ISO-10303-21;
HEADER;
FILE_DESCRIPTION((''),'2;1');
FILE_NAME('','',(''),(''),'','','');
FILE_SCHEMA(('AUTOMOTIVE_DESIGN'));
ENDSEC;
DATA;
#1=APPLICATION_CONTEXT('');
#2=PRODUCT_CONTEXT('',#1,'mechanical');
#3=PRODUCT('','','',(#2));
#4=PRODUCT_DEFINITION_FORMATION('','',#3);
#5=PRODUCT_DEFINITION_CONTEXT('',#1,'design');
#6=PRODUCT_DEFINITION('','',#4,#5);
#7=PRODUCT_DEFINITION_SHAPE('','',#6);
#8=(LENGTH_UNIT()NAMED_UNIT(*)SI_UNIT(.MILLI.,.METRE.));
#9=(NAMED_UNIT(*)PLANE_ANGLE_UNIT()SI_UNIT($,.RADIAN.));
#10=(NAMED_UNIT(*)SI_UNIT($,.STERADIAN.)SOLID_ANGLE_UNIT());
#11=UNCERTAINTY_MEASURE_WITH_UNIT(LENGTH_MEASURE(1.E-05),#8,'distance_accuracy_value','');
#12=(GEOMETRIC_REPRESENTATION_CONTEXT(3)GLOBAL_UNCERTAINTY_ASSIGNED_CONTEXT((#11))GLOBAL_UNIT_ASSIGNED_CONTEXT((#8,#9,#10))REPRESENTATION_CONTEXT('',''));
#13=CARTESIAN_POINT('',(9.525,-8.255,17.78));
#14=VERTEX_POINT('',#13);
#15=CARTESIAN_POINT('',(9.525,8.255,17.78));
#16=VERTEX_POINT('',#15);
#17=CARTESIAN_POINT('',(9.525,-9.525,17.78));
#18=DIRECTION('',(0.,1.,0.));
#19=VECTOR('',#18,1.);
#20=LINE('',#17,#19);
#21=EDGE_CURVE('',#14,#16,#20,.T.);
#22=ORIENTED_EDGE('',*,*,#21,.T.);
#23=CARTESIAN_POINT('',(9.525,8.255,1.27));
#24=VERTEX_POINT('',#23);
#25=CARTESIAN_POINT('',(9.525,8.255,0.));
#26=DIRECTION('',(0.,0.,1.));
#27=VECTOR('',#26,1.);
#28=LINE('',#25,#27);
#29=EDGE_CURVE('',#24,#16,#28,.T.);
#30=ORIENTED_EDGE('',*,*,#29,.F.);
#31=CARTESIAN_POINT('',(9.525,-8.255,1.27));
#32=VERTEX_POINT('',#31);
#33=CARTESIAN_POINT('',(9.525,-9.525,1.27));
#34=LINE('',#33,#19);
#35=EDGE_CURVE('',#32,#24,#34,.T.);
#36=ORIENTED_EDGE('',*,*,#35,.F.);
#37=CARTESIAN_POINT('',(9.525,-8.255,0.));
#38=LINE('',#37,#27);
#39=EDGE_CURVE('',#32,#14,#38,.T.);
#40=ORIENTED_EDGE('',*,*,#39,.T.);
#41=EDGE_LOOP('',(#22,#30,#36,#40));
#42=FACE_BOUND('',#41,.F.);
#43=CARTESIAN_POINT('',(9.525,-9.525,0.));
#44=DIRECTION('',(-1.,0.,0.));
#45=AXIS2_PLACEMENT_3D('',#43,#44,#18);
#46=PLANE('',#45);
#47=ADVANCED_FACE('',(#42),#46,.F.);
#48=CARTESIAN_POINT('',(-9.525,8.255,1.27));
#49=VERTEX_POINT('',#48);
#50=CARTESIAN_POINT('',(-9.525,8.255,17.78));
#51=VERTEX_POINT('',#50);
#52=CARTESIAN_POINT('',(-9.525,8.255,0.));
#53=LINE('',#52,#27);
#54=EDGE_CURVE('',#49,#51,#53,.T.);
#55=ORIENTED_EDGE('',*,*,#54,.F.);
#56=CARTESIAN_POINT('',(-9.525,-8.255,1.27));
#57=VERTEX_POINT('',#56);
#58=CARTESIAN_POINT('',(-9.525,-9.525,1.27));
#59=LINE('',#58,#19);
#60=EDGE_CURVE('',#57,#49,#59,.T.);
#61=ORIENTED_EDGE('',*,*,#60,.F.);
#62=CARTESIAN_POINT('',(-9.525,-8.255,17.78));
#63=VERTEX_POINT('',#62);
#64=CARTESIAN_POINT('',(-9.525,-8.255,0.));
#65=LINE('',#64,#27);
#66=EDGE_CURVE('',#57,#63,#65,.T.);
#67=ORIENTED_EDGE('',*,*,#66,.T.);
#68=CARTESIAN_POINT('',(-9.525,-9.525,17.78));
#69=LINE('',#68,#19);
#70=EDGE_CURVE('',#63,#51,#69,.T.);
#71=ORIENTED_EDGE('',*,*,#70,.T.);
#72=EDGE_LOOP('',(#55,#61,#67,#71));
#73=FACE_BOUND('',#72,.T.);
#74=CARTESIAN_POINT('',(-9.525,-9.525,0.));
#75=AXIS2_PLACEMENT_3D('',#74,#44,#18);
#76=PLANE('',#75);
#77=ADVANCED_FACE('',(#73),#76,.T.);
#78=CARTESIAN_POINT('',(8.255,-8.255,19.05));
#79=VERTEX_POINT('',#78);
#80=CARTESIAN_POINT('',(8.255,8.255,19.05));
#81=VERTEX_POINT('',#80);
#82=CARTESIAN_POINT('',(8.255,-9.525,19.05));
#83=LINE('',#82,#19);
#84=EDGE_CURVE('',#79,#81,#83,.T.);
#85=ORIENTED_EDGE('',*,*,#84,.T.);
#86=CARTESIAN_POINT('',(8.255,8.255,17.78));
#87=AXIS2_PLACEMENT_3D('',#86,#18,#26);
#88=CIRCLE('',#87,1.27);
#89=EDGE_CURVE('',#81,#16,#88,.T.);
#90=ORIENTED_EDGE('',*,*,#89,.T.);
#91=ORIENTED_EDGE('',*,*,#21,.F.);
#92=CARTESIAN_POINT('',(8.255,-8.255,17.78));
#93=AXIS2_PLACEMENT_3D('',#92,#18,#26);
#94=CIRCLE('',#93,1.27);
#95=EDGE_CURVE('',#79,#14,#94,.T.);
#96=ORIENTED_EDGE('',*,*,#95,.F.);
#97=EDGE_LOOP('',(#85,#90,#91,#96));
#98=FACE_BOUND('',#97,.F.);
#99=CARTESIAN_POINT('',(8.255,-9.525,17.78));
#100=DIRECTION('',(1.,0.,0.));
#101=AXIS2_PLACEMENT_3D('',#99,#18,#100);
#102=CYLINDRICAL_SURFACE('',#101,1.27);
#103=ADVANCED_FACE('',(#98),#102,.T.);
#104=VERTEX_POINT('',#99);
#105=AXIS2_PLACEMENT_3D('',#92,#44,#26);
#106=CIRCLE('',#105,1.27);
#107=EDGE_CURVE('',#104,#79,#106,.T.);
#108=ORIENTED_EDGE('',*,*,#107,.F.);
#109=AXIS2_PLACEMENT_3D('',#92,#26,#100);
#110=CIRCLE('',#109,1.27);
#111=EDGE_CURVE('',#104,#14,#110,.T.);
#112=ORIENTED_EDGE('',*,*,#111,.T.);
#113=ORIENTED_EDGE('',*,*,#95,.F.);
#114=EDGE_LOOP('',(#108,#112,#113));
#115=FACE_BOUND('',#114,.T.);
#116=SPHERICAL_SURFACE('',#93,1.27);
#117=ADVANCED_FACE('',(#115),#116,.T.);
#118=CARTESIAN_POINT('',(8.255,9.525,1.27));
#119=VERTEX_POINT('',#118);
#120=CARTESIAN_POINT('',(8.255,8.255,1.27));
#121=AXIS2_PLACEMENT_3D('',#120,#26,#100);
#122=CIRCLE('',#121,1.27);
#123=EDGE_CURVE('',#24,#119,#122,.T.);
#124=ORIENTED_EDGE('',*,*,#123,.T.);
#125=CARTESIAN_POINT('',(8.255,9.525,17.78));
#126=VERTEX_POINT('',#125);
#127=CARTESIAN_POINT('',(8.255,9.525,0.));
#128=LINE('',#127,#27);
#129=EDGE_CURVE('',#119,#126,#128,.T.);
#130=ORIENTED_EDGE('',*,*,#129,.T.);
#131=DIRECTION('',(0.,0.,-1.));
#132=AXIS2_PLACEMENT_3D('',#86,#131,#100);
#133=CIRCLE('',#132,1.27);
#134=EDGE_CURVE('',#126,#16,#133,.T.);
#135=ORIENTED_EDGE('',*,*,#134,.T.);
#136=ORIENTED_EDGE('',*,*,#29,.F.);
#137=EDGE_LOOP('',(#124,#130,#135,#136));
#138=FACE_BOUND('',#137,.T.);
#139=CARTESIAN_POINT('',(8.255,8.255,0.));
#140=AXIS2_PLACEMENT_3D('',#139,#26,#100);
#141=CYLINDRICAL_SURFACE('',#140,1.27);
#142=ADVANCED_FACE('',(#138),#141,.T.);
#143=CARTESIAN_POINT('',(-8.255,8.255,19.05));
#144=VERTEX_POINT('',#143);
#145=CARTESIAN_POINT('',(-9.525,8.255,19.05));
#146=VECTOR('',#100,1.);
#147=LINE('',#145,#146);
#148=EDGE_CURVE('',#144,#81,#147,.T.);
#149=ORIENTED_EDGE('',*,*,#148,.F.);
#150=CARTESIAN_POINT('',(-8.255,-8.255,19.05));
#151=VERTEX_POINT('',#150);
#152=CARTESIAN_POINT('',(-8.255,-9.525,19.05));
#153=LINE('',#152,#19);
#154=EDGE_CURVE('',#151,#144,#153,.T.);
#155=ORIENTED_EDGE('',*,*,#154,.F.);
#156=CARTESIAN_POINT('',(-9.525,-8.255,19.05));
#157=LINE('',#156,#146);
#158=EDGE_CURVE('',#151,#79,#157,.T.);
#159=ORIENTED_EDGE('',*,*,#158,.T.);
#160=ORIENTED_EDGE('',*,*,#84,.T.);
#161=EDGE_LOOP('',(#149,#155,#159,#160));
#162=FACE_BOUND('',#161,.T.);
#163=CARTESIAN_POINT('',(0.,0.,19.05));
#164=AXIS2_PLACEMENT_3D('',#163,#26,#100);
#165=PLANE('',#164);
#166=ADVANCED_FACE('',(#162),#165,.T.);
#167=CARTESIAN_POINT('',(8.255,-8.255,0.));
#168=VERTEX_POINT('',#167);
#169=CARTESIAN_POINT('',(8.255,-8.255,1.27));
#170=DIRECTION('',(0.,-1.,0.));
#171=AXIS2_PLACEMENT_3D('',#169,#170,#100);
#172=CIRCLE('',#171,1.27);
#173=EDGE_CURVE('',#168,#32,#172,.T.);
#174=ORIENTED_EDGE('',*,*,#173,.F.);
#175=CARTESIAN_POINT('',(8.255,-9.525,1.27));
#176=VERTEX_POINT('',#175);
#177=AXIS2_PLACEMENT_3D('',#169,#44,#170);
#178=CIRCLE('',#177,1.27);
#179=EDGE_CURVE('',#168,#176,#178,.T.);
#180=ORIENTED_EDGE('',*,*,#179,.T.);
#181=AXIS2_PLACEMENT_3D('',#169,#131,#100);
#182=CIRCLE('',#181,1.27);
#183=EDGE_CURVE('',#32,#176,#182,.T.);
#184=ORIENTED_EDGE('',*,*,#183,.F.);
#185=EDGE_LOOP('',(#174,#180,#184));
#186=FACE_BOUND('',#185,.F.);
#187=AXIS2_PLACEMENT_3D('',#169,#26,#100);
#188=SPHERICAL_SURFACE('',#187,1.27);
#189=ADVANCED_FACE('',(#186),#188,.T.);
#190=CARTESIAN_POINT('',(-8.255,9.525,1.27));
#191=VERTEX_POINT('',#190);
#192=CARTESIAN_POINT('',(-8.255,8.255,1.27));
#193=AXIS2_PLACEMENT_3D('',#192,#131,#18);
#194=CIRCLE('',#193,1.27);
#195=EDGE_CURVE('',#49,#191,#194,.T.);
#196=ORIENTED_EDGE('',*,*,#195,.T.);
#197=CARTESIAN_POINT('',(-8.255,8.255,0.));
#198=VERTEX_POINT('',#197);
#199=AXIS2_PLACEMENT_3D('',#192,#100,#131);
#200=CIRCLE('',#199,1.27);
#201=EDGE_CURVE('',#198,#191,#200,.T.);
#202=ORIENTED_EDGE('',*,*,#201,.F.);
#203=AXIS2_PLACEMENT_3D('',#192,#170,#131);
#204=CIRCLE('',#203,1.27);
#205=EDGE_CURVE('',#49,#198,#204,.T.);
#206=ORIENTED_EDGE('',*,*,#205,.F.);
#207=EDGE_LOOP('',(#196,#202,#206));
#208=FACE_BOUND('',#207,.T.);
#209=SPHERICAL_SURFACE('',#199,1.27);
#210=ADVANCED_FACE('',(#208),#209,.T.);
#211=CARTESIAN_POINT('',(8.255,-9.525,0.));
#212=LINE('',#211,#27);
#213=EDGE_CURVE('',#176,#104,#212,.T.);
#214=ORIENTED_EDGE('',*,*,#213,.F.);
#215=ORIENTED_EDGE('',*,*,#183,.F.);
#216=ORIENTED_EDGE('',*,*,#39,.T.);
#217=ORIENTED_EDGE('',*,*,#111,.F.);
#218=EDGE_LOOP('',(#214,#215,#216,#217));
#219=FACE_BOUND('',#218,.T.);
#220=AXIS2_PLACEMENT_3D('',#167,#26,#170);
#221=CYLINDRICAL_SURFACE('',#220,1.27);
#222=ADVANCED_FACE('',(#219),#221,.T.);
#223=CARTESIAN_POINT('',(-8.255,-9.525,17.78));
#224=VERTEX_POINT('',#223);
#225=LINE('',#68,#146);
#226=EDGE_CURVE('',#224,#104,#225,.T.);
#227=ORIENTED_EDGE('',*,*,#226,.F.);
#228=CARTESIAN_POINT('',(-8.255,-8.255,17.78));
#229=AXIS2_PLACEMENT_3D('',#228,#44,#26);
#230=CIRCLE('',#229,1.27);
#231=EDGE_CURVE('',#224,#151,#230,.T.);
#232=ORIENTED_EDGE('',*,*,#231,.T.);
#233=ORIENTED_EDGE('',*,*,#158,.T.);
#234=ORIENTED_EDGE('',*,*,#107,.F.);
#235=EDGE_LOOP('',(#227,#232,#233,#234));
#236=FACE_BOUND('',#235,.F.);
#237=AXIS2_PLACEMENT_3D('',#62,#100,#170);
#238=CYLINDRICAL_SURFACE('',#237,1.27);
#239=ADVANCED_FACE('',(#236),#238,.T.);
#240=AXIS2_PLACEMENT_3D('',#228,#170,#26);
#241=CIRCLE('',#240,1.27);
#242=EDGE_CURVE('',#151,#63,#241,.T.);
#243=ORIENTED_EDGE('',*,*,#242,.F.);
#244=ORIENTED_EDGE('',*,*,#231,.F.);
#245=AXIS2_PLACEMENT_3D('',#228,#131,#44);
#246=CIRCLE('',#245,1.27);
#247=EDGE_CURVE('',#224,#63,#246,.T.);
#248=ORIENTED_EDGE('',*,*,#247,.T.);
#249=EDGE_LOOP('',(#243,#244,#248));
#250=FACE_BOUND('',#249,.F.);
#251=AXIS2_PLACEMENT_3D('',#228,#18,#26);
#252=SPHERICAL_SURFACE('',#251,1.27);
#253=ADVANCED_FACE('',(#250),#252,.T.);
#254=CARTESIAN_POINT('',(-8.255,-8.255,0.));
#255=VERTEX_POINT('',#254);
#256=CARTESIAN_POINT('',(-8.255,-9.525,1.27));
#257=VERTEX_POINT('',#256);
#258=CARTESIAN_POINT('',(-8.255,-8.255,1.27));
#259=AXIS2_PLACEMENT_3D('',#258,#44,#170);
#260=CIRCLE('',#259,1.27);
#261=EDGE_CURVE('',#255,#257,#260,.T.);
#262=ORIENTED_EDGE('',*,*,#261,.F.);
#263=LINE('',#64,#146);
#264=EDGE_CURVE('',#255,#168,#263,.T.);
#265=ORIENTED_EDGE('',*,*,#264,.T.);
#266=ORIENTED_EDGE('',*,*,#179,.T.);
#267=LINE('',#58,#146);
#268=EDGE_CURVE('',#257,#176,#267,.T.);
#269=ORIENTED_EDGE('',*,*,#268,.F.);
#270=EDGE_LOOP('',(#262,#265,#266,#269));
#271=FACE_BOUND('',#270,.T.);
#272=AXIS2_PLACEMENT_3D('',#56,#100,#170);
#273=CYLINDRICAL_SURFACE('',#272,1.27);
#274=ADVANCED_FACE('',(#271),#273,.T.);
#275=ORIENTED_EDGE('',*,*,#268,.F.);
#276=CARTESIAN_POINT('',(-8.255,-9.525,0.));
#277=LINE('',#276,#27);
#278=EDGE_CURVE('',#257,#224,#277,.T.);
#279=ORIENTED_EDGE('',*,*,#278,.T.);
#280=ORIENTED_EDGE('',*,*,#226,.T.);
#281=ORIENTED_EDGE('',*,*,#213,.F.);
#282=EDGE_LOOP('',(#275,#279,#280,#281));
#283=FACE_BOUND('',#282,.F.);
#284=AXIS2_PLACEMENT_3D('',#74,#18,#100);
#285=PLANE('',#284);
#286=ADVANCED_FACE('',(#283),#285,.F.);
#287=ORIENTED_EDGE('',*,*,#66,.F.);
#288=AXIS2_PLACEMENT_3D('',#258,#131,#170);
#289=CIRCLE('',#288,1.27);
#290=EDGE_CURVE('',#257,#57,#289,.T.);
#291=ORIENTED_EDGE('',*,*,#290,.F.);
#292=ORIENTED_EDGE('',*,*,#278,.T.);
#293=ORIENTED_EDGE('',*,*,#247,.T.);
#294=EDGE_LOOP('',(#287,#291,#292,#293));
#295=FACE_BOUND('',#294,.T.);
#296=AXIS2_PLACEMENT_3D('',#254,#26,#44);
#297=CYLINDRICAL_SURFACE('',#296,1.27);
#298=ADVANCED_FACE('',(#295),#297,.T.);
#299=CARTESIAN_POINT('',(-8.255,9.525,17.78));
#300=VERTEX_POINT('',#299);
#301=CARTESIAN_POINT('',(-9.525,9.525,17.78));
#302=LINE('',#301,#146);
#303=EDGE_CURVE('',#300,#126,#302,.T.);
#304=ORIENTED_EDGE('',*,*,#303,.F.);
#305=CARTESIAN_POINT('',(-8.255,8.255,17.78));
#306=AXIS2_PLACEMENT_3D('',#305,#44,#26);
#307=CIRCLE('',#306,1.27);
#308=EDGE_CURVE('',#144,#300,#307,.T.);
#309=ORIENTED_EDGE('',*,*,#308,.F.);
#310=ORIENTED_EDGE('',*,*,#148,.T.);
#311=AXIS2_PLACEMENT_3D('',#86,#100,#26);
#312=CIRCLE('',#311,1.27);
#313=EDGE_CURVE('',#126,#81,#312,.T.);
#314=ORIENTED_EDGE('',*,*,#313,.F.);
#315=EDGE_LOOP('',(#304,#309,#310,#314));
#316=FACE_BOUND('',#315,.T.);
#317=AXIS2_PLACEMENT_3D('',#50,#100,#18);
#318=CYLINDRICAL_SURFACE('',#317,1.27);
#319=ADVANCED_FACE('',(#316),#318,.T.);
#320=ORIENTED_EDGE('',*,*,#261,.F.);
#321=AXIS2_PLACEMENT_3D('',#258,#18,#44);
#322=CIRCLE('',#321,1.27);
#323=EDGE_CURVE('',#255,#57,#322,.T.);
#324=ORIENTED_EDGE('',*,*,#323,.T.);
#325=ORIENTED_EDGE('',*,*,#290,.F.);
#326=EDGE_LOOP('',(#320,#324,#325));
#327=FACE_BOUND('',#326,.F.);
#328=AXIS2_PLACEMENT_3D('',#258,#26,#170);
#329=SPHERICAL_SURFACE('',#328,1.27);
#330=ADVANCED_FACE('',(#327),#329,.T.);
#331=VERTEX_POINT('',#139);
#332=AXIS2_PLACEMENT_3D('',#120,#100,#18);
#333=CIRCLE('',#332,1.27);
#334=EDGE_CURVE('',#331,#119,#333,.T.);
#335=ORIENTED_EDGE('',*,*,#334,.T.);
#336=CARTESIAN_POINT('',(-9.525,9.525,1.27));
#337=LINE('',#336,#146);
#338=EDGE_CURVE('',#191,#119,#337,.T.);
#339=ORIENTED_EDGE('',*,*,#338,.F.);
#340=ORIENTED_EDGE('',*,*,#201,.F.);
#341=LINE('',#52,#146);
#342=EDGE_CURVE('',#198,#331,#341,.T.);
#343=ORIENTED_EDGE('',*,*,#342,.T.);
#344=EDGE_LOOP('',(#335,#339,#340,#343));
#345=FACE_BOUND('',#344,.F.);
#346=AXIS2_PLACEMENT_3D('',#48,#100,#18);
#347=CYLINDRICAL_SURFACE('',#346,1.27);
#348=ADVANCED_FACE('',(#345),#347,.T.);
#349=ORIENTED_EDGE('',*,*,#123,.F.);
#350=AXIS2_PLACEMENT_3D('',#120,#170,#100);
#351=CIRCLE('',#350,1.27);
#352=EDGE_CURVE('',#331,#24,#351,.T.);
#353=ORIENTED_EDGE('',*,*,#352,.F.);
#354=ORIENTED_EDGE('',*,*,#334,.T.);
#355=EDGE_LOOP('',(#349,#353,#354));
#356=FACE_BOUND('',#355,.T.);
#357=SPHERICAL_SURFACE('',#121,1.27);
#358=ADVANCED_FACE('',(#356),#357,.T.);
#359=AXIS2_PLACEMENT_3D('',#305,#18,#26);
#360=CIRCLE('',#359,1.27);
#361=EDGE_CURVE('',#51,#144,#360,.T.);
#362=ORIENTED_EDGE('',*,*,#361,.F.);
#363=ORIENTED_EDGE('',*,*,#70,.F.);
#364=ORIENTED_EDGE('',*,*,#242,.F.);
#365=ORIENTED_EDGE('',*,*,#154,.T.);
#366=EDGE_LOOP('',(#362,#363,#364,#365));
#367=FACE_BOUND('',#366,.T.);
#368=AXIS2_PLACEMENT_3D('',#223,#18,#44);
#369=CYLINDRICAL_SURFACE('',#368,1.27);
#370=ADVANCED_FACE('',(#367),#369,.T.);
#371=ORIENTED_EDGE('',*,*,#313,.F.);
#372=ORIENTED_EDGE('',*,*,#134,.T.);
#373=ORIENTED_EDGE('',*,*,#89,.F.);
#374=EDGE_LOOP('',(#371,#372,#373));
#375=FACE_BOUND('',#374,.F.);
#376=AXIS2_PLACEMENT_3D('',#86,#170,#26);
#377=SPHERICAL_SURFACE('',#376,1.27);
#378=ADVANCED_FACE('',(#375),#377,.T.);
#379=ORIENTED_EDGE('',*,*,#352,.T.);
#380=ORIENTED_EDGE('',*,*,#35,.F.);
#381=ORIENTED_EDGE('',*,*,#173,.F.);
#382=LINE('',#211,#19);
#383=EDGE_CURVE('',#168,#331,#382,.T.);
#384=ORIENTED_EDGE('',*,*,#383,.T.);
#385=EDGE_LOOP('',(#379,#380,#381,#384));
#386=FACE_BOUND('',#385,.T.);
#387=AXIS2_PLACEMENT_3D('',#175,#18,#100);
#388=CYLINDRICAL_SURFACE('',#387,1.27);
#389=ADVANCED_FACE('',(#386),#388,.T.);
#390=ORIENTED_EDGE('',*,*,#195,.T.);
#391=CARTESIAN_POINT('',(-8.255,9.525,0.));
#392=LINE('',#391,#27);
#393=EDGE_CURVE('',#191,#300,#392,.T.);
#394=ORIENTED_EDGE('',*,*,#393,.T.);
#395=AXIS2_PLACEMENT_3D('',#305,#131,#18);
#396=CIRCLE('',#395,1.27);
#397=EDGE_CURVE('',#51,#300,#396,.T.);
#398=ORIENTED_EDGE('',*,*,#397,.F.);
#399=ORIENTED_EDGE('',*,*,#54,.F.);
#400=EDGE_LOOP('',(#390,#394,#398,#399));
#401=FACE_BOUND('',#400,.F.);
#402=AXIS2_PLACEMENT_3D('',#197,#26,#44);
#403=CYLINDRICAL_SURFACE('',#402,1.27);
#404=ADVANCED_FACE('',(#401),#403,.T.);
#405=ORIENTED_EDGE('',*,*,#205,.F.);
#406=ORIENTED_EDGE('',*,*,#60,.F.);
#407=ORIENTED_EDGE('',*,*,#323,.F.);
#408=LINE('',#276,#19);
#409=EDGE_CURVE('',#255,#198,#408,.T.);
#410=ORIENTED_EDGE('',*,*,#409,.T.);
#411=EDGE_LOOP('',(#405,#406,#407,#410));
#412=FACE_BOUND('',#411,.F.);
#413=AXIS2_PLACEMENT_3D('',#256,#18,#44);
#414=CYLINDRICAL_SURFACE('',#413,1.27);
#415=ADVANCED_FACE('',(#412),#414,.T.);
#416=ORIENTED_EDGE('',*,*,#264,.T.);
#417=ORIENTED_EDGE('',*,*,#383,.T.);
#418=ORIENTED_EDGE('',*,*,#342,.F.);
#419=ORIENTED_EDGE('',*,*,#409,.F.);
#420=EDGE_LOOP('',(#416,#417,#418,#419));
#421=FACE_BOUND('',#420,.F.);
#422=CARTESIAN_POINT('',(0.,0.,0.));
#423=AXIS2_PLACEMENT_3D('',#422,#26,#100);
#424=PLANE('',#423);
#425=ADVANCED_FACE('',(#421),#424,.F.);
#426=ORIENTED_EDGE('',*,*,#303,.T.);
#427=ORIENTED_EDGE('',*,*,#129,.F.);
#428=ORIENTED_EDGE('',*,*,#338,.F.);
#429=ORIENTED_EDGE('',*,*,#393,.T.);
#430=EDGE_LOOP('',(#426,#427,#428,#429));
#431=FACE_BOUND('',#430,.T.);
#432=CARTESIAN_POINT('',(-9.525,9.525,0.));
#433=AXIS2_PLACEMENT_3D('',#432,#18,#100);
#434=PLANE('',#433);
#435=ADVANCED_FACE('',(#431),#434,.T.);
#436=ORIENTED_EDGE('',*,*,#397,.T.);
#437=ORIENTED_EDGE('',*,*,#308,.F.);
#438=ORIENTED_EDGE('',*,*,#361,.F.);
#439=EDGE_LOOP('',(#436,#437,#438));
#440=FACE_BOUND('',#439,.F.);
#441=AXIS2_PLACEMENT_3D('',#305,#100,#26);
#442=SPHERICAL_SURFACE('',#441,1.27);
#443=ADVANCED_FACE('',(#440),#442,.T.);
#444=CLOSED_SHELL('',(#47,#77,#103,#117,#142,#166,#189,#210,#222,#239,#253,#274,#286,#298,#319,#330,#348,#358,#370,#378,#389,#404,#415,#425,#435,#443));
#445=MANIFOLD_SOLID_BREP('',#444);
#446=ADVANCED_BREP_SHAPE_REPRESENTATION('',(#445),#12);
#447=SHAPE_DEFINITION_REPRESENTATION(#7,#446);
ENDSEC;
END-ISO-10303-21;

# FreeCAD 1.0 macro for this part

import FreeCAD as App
import Part
import Sketcher

V = App.Vector
Q = App.Units.Quantity


def add_polygon(sketch, points):
    """Adds a closed chain of lines whose ends are joined by coincident constraints."""
    first, n = sketch.GeometryCount, len(points)
    for a, b in zip(points, points[1:] + points[:1]):
        sketch.addGeometry(Part.LineSegment(App.Vector(*a, 0), App.Vector(*b, 0)), False)
    for i in range(n):
        sketch.addConstraint(Sketcher.Constraint("Coincident", first + i, 2, first + (i + 1) % n, 1))

doc = App.newDocument("Part")
body = doc.addObject("PartDesign::Body", "Body")

sketch1 = body.newObject("Sketcher::SketchObject", "Sketch")
sketch1.AttachmentSupport = (doc.getObject("XY_Plane"), [""])
sketch1.MapMode = "FlatFace"
add_polygon(sketch1, [(-10, 10), (-10, -10), (10, -10), (10, 10)])
sketch1.addConstraint([
    Sketcher.Constraint("Vertical", 0),
    Sketcher.Constraint("Horizontal", 1),
    Sketcher.Constraint("Vertical", 2),
    Sketcher.Constraint("Horizontal", 3),
    Sketcher.Constraint("Symmetric", 0, 2, 2, 2, -1, 1),
    Sketcher.Constraint("Equal", 3, 0),
    Sketcher.Constraint("DistanceX", 1, 1, 1, 2, Q("0.75 in")),
])
pad1 = body.newObject("PartDesign::Pad", "Pad")
pad1.Profile = sketch1
pad1.Length = Q("0.75 in")
doc.recompute()

fillet = body.newObject("PartDesign::Fillet", "Fillet")
fillet.Base = (pad1, ["Edge1"])
fillet.UseAllEdges = True
fillet.Radius = Q("0.05 in")

doc.recompute()
